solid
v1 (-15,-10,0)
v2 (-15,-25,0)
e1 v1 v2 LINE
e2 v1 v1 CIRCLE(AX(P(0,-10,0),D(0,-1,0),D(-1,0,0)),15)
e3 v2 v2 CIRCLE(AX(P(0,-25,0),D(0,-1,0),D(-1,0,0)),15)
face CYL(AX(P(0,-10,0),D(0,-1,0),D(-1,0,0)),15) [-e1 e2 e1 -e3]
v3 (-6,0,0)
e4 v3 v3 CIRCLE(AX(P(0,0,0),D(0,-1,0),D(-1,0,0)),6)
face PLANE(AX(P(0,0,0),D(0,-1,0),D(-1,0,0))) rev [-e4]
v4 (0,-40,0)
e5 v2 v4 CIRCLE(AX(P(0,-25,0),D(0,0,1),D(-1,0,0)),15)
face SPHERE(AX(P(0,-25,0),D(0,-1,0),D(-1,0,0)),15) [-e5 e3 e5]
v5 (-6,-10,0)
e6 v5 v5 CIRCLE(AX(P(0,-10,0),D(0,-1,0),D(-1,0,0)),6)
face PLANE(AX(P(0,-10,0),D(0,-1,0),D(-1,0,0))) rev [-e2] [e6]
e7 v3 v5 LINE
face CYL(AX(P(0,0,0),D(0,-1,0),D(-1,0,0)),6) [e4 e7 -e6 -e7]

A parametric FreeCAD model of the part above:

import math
import FreeCAD as App
import Part
import Sketcher
from FreeCAD import Vector
Q = App.Units.Quantity

doc = App.newDocument("Part")
body = doc.addObject("PartDesign::Body", "Body")

sketch1 = body.newObject("Sketcher::SketchObject", "Sketch")
sketch1.AttachmentSupport = (doc.getObject("XY_Plane"), [""])
sketch1.MapMode = "FlatFace"
sketch1.addGeometry([
    Part.LineSegment(Vector(0, 0, 0), Vector(-6, 0, 0)),
    Part.LineSegment(Vector(-6, 0, 0), Vector(-6, -10, 0)),
    Part.LineSegment(Vector(-6, -10, 0), Vector(-15, -10, 0)),
    Part.LineSegment(Vector(-15, -10, 0), Vector(-15, -25, 0)),
    Part.ArcOfCircle(Part.Circle(Vector(0, -25, 0), Vector(0, 0, 1), 15), math.radians(180), math.radians(270)),
    Part.LineSegment(Vector(0, -40, 0), Vector(0, 0, 0)),
], False)
sketch1.addConstraint([
    Sketcher.Constraint("Coincident", 0, 2, 1, 1),
    Sketcher.Constraint("Coincident", 1, 2, 2, 1),
    Sketcher.Constraint("Coincident", 2, 2, 3, 1),
    Sketcher.Constraint("Tangent", 3, 2, 4, 1),
    Sketcher.Constraint("Coincident", 4, 2, 5, 1),
    Sketcher.Constraint("Coincident", 5, 2, 0, 1),
    Sketcher.Constraint("Horizontal", 0),
    Sketcher.Constraint("Vertical", 1),
    Sketcher.Constraint("Horizontal", 2),
    Sketcher.Constraint("Vertical", 3),
    Sketcher.Constraint("Vertical", 5),
    Sketcher.Constraint("Coincident", 5, 2, -1, 1),
    Sketcher.Constraint("PointOnObject", 4, 3, -2),
    Sketcher.Constraint("Radius", 4, Q("15 mm")),
    Sketcher.Constraint("DistanceX", 0, 2, 0, 1, Q("6 mm")),
    Sketcher.Constraint("DistanceY", 1, 2, 1, 1, Q("10 mm")),
    Sketcher.Constraint("DistanceY", 3, 2, 3, 1, Q("15 mm")),
])
revolution = body.newObject("PartDesign::Revolution", "Revolution")
revolution.Profile = sketch1
revolution.ReferenceAxis = (sketch1, ["V_Axis"])
revolution.Angle = 360

doc.recompute()
